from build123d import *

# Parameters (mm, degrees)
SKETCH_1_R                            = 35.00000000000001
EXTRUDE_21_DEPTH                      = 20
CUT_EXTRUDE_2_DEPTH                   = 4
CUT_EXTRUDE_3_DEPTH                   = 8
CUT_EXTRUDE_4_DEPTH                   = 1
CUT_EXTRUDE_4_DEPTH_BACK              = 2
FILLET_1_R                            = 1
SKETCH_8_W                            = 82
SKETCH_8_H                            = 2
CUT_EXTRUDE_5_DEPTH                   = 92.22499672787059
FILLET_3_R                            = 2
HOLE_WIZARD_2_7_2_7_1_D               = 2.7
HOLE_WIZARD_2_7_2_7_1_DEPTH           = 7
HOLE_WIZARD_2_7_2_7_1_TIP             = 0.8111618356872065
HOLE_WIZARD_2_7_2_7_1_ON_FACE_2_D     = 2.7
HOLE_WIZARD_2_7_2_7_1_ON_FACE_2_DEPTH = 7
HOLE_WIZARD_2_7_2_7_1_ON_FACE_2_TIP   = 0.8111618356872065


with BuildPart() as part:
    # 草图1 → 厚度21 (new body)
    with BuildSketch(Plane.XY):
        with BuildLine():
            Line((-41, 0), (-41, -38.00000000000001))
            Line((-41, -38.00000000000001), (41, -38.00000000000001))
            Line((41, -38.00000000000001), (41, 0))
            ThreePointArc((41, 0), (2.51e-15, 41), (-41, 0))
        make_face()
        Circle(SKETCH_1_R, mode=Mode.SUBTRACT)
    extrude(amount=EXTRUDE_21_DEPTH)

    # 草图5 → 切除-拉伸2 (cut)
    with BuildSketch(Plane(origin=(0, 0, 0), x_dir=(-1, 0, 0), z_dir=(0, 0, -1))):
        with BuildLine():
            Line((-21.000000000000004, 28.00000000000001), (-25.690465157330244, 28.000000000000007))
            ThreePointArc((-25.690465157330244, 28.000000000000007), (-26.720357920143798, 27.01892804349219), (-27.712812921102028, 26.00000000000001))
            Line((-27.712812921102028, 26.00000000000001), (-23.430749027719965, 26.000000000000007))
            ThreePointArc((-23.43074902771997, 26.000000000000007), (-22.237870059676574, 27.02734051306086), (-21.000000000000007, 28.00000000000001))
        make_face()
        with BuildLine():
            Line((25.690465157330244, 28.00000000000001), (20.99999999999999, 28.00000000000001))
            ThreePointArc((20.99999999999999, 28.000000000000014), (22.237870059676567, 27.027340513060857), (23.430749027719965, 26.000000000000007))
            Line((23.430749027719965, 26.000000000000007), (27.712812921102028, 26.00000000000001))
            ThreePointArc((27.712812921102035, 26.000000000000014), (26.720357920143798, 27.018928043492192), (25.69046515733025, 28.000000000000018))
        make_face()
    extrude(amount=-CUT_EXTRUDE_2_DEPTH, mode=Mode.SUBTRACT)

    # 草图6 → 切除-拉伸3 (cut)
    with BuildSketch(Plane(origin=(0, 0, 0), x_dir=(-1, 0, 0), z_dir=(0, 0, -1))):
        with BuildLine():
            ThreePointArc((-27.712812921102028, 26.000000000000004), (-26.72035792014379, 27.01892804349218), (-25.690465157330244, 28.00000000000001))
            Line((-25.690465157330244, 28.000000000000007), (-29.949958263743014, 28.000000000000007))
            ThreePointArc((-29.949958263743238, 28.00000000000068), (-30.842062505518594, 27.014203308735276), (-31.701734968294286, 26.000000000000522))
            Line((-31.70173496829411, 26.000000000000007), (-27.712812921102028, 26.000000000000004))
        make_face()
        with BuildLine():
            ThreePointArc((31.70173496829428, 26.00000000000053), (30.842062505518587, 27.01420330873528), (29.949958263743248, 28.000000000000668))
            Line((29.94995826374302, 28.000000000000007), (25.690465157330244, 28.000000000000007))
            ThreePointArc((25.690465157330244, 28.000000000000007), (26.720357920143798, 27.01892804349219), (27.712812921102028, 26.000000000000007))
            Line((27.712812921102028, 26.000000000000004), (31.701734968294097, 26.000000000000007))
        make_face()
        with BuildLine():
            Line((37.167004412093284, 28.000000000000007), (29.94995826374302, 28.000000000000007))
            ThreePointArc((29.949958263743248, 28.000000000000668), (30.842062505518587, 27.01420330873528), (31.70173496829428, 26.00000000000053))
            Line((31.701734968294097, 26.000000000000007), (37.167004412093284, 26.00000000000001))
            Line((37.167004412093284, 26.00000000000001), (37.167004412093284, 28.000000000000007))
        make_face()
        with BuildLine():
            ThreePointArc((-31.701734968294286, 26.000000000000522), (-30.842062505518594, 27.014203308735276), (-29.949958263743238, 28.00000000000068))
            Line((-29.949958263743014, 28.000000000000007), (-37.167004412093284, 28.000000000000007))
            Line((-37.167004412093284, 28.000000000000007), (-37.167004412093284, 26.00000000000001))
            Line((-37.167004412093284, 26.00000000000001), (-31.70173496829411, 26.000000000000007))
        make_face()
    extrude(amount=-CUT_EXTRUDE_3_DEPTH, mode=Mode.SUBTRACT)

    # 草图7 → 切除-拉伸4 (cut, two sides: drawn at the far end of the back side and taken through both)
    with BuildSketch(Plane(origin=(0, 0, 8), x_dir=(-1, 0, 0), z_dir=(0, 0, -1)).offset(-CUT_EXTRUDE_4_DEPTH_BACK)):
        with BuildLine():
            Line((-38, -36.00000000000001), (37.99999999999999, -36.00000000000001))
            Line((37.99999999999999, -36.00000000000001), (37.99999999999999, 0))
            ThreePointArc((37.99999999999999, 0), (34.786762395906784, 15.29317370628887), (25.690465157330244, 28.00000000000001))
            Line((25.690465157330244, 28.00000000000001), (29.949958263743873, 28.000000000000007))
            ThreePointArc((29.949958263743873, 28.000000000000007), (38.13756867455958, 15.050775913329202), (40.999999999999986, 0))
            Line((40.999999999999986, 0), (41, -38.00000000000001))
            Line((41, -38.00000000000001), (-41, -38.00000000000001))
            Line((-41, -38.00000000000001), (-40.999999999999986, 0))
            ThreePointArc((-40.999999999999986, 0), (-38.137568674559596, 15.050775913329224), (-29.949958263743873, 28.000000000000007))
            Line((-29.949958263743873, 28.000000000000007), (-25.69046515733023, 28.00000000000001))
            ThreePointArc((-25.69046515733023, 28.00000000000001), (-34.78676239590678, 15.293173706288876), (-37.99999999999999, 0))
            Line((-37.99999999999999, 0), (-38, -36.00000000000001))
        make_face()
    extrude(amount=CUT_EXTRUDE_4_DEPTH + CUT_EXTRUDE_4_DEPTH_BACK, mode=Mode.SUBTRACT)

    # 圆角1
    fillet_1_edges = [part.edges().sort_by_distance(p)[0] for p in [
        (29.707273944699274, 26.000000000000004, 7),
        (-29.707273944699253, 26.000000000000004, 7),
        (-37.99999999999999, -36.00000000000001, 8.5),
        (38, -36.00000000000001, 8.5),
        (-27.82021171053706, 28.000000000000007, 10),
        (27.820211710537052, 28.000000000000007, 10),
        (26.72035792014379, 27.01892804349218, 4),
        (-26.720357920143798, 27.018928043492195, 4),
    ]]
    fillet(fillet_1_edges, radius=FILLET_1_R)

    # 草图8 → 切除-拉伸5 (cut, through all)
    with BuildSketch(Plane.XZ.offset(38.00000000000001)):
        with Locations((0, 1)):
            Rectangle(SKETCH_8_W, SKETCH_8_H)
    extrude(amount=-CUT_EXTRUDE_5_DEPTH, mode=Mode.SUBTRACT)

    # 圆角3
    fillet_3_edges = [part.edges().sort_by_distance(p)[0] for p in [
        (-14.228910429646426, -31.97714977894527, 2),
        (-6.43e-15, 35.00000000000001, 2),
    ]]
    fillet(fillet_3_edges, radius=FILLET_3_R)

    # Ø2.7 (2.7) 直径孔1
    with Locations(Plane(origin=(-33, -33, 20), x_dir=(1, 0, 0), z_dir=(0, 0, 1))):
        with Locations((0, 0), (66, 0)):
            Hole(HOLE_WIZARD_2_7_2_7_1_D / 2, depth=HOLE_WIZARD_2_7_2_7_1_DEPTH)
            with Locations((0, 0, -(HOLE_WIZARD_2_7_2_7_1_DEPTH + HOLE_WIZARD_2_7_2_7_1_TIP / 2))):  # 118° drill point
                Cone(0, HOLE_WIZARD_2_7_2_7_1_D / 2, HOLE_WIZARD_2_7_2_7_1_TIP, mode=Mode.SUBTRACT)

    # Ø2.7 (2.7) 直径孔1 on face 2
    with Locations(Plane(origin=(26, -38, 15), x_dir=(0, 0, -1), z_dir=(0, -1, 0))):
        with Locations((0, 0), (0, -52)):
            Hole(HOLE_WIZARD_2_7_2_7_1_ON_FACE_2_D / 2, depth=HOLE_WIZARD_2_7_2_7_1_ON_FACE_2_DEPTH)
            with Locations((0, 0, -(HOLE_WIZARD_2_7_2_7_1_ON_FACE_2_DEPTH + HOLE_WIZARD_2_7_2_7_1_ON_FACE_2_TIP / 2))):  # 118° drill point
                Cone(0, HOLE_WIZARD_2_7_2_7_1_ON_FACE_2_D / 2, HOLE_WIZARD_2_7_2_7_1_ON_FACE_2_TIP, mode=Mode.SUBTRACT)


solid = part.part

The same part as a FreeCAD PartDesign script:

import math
import FreeCAD as App
import Part
import Sketcher


def edges_at(feature, points):
    """Names of the edges that pass closest to the given points."""
    edges = feature.Shape.Edges
    near = lambda p: min(range(len(edges)), key=lambda i: edges[i].distToShape(Part.Vertex(*p))[0])
    return sorted({f"Edge{near(p) + 1}" for p in points})


def add_polygon(sketch, points):
    """Adds a closed chain of lines whose ends are joined by coincident constraints."""
    first, n = sketch.GeometryCount, len(points)
    for a, b in zip(points, points[1:] + points[:1]):
        sketch.addGeometry(Part.LineSegment(App.Vector(*a, 0), App.Vector(*b, 0)), False)
    for i in range(n):
        sketch.addConstraint(Sketcher.Constraint("Coincident", first + i, 2, first + (i + 1) % n, 1))

doc = App.newDocument("Part")
body = doc.addObject("PartDesign::Body", "Body")

# Sketch on XY plane
sketch1 = body.newObject("Sketcher::SketchObject", "Sketch")
sketch1.AttachmentSupport = (doc.getObject("XY_Plane"), [""])
sketch1.MapMode = "FlatFace"
sketch1.addGeometry(Part.LineSegment(App.Vector(-41, 0, 0), App.Vector(-41, -38, 0)), False)
sketch1.addGeometry(Part.LineSegment(App.Vector(-41, -38, 0), App.Vector(41, -38, 0)), False)
sketch1.addGeometry(Part.LineSegment(App.Vector(41, -38, 0), App.Vector(41, 0, 0)), False)
sketch1.addGeometry(Part.ArcOfCircle(Part.Circle(App.Vector(0, 0, 0), App.Vector(0, 0, 1), 41), math.radians(0), math.radians(180)), False)
sketch1.addGeometry(Part.Circle(App.Vector(0, 0, 0), App.Vector(0, 0, 1), 35), False)
sketch1.addConstraint(Sketcher.Constraint("Coincident", 0, 2, 1, 1))
sketch1.addConstraint(Sketcher.Constraint("Coincident", 1, 2, 2, 1))
sketch1.addConstraint(Sketcher.Constraint("Tangent", 2, 2, 3, 1))
sketch1.addConstraint(Sketcher.Constraint("Tangent", 3, 2, 0, 1))
sketch1.addConstraint(Sketcher.Constraint("Vertical", 0))
sketch1.addConstraint(Sketcher.Constraint("Horizontal", 1))
sketch1.addConstraint(Sketcher.Constraint("Vertical", 2))
sketch1.addConstraint(Sketcher.Constraint("Coincident", 3, 3, -1, 1))
sketch1.addConstraint(Sketcher.Constraint("Coincident", 4, 3, -1, 1))
sketch1.addConstraint(Sketcher.Constraint("Diameter", 4, 70.0))
sketch1.addConstraint(Sketcher.Constraint("Radius", 3, 41.0))
sketch1.addConstraint(Sketcher.Constraint("DistanceY", 0, 2, 0, 1, 38.0))
pad1 = body.newObject("PartDesign::Pad", "Pad")
pad1.Profile = sketch1
pad1.Length = 20

# Sketch on XY plane
sketch2 = body.newObject("Sketcher::SketchObject", "Sketch001")
sketch2.AttachmentSupport = (doc.getObject("XY_Plane"), [""])
sketch2.MapMode = "FlatFace"
sketch2.addGeometry(Part.LineSegment(App.Vector(21, 28, 0), App.Vector(25.7, 28, 0)), False)
sketch2.addGeometry(Part.ArcOfCircle(Part.Circle(App.Vector(0, 0, 0), App.Vector(0, 0, 1), 38), math.radians(43.17), math.radians(47.46)), False)
sketch2.addGeometry(Part.LineSegment(App.Vector(27.7, 26, 0), App.Vector(23.4, 26, 0)), False)
sketch2.addGeometry(Part.ArcOfCircle(Part.Circle(App.Vector(0, 0, 0), App.Vector(0, 0, 1), 35), math.radians(47.98), math.radians(53.13)), False)
sketch2.addGeometry(Part.LineSegment(App.Vector(-25.7, 28, 0), App.Vector(-21, 28, 0)), False)
sketch2.addGeometry(Part.ArcOfCircle(Part.Circle(App.Vector(0, 0, 0), App.Vector(0, 0, 1), 35), math.radians(126.87), math.radians(132.02)), False)
sketch2.addGeometry(Part.LineSegment(App.Vector(-23.4, 26, 0), App.Vector(-27.7, 26, 0)), False)
sketch2.addGeometry(Part.ArcOfCircle(Part.Circle(App.Vector(0, 0, 0), App.Vector(0, 0, 1), 38), math.radians(132.54), math.radians(136.83)), False)
sketch2.addConstraint(Sketcher.Constraint("Coincident", 0, 2, 1, 2))
sketch2.addConstraint(Sketcher.Constraint("Coincident", 1, 1, 2, 1))
sketch2.addConstraint(Sketcher.Constraint("Coincident", 2, 2, 3, 1))
sketch2.addConstraint(Sketcher.Constraint("Coincident", 3, 2, 0, 1))
sketch2.addConstraint(Sketcher.Constraint("Coincident", 4, 2, 5, 1))
sketch2.addConstraint(Sketcher.Constraint("Coincident", 5, 2, 6, 1))
sketch2.addConstraint(Sketcher.Constraint("Coincident", 6, 2, 7, 2))
sketch2.addConstraint(Sketcher.Constraint("Coincident", 7, 1, 4, 1))
sketch2.addConstraint(Sketcher.Constraint("Horizontal", 0))
sketch2.addConstraint(Sketcher.Constraint("Horizontal", 2))
sketch2.addConstraint(Sketcher.Constraint("Horizontal", 4))
sketch2.addConstraint(Sketcher.Constraint("Horizontal", 6))
sketch2.addConstraint(Sketcher.Constraint("Coincident", 1, 3, -1, 1))
sketch2.addConstraint(Sketcher.Constraint("Coincident", 3, 3, -1, 1))
sketch2.addConstraint(Sketcher.Constraint("Coincident", 5, 3, -1, 1))
sketch2.addConstraint(Sketcher.Constraint("Coincident", 7, 3, -1, 1))
sketch2.addConstraint(Sketcher.Constraint("Equal", 3, 5))
sketch2.addConstraint(Sketcher.Constraint("Equal", 1, 7))
sketch2.addConstraint(Sketcher.Constraint("Horizontal", 3, 2, 4, 2))
sketch2.addConstraint(Sketcher.Constraint("Horizontal", 2, 2, 5, 2))
sketch2.addConstraint(Sketcher.Constraint("Radius", 1, 38.0))
sketch2.addConstraint(Sketcher.Constraint("Radius", 3, 35.0))
sketch2.addConstraint(Sketcher.Constraint("DistanceY", -1, 1, 0, 2, 28.0))
sketch2.addConstraint(Sketcher.Constraint("DistanceY", -1, 1, 1, 1, 26.0))
pocket1 = body.newObject("PartDesign::Pocket", "Pocket")
pocket1.Profile = sketch2
pocket1.Length = 4
pocket1.Reversed = True

# Sketch on XY plane
sketch3 = body.newObject("Sketcher::SketchObject", "Sketch002")
sketch3.AttachmentSupport = (doc.getObject("XY_Plane"), [""])
sketch3.MapMode = "FlatFace"
sketch3.addGeometry(Part.ArcOfCircle(Part.Circle(App.Vector(0, 0, 0), App.Vector(0, 0, 1), 38), math.radians(43.17), math.radians(47.46)), False)
sketch3.addGeometry(Part.LineSegment(App.Vector(25.7, 28, 0), App.Vector(37.2, 28, 0)), False)
sketch3.addGeometry(Part.LineSegment(App.Vector(37.2, 28, 0), App.Vector(37.2, 26, 0)), False)
sketch3.addGeometry(Part.LineSegment(App.Vector(37.2, 26, 0), App.Vector(27.7, 26, 0)), False)
sketch3.addGeometry(Part.ArcOfCircle(Part.Circle(App.Vector(0, 0, 0), App.Vector(0, 0, 1), 38), math.radians(132.54), math.radians(136.83)), False)
sketch3.addGeometry(Part.LineSegment(App.Vector(-27.7, 26, 0), App.Vector(-37.2, 26, 0)), False)
sketch3.addGeometry(Part.LineSegment(App.Vector(-37.2, 26, 0), App.Vector(-37.2, 28, 0)), False)
sketch3.addGeometry(Part.LineSegment(App.Vector(-37.2, 28, 0), App.Vector(-25.7, 28, 0)), False)
sketch3.addConstraint(Sketcher.Constraint("Coincident", 0, 2, 1, 1))
sketch3.addConstraint(Sketcher.Constraint("Coincident", 1, 2, 2, 1))
sketch3.addConstraint(Sketcher.Constraint("Coincident", 2, 2, 3, 1))
sketch3.addConstraint(Sketcher.Constraint("Coincident", 3, 2, 0, 1))
sketch3.addConstraint(Sketcher.Constraint("Coincident", 4, 2, 5, 1))
sketch3.addConstraint(Sketcher.Constraint("Coincident", 5, 2, 6, 1))
sketch3.addConstraint(Sketcher.Constraint("Coincident", 6, 2, 7, 1))
sketch3.addConstraint(Sketcher.Constraint("Coincident", 7, 2, 4, 1))
sketch3.addConstraint(Sketcher.Constraint("Horizontal", 1))
sketch3.addConstraint(Sketcher.Constraint("Vertical", 2))
sketch3.addConstraint(Sketcher.Constraint("Horizontal", 3))
sketch3.addConstraint(Sketcher.Constraint("Horizontal", 5))
sketch3.addConstraint(Sketcher.Constraint("Vertical", 6))
sketch3.addConstraint(Sketcher.Constraint("Horizontal", 7))
sketch3.addConstraint(Sketcher.Constraint("Coincident", 0, 3, -1, 1))
sketch3.addConstraint(Sketcher.Constraint("Coincident", 4, 3, -1, 1))
sketch3.addConstraint(Sketcher.Constraint("Equal", 0, 4))
sketch3.addConstraint(Sketcher.Constraint("Symmetric", 2, 2, 5, 2, -2))
sketch3.addConstraint(Sketcher.Constraint("Horizontal", 1, 2, 6, 2))
sketch3.addConstraint(Sketcher.Constraint("Radius", 0, 38.0))
sketch3.addConstraint(Sketcher.Constraint("DistanceY", 2, 2, 2, 1, 2.0))
sketch3.addConstraint(Sketcher.Constraint("DistanceY", -1, 1, 0, 2, 28.0))
sketch3.addConstraint(Sketcher.Constraint("DistanceX", 1, 1, 1, 2, 11.476539))
pocket2 = body.newObject("PartDesign::Pocket", "Pocket001")
pocket2.Profile = sketch3
pocket2.Length = 8
pocket2.Reversed = True

# Sketch on XY plane
sketch4 = body.newObject("Sketcher::SketchObject", "Sketch003")
sketch4.AttachmentSupport = (doc.getObject("XY_Plane"), [""])
sketch4.MapMode = "FlatFace"
sketch4.AttachmentOffset = App.Placement(App.Vector(0, 0, 8), App.Rotation())
sketch4.addGeometry(Part.LineSegment(App.Vector(-38, -36, 0), App.Vector(38, -36, 0)), False)
sketch4.addGeometry(Part.LineSegment(App.Vector(38, -36, 0), App.Vector(38, 0, 0)), False)
sketch4.addGeometry(Part.ArcOfCircle(Part.Circle(App.Vector(0, 0, 0), App.Vector(0, 0, 1), 38), math.radians(0), math.radians(47)), False)
sketch4.addGeometry(Part.LineSegment(App.Vector(25.7, 28, 0), App.Vector(29.9, 28, 0)), False)
sketch4.addGeometry(Part.ArcOfCircle(Part.Circle(App.Vector(0, 0, 0), App.Vector(0, 0, 1), 41), math.radians(0), math.radians(43)), False)
sketch4.addGeometry(Part.LineSegment(App.Vector(41, 0, 0), App.Vector(41, -38, 0)), False)
sketch4.addGeometry(Part.LineSegment(App.Vector(41, -38, 0), App.Vector(-41, -38, 0)), False)
sketch4.addGeometry(Part.LineSegment(App.Vector(-41, -38, 0), App.Vector(-41, 0, 0)), False)
sketch4.addGeometry(Part.ArcOfCircle(Part.Circle(App.Vector(0, 0, 0), App.Vector(0, 0, 1), 41), math.radians(137), math.radians(180)), False)
sketch4.addGeometry(Part.LineSegment(App.Vector(-29.9, 28, 0), App.Vector(-25.7, 28, 0)), False)
sketch4.addGeometry(Part.ArcOfCircle(Part.Circle(App.Vector(0, 0, 0), App.Vector(0, 0, 1), 38), math.radians(133), math.radians(180)), False)
sketch4.addGeometry(Part.LineSegment(App.Vector(-38, 0, 0), App.Vector(-38, -36, 0)), False)
sketch4.addConstraint(Sketcher.Constraint("Coincident", 0, 2, 1, 1))
sketch4.addConstraint(Sketcher.Constraint("Tangent", 1, 2, 2, 1))
sketch4.addConstraint(Sketcher.Constraint("Coincident", 2, 2, 3, 1))
sketch4.addConstraint(Sketcher.Constraint("Coincident", 3, 2, 4, 2))
sketch4.addConstraint(Sketcher.Constraint("Tangent", 4, 1, 5, 1))
sketch4.addConstraint(Sketcher.Constraint("Coincident", 5, 2, 6, 1))
sketch4.addConstraint(Sketcher.Constraint("Coincident", 6, 2, 7, 1))
sketch4.addConstraint(Sketcher.Constraint("Tangent", 7, 2, 8, 2))
sketch4.addConstraint(Sketcher.Constraint("Coincident", 8, 1, 9, 1))
sketch4.addConstraint(Sketcher.Constraint("Coincident", 9, 2, 10, 1))
sketch4.addConstraint(Sketcher.Constraint("Tangent", 10, 2, 11, 1))
sketch4.addConstraint(Sketcher.Constraint("Coincident", 11, 2, 0, 1))
sketch4.addConstraint(Sketcher.Constraint("Horizontal", 0))
sketch4.addConstraint(Sketcher.Constraint("Vertical", 1))
sketch4.addConstraint(Sketcher.Constraint("Horizontal", 3))
sketch4.addConstraint(Sketcher.Constraint("Vertical", 5))
sketch4.addConstraint(Sketcher.Constraint("Horizontal", 6))
sketch4.addConstraint(Sketcher.Constraint("Vertical", 7))
sketch4.addConstraint(Sketcher.Constraint("Horizontal", 9))
sketch4.addConstraint(Sketcher.Constraint("Vertical", 11))
sketch4.addConstraint(Sketcher.Constraint("Coincident", 2, 3, -1, 1))
sketch4.addConstraint(Sketcher.Constraint("Coincident", 4, 3, -1, 1))
sketch4.addConstraint(Sketcher.Constraint("Coincident", 8, 3, -1, 1))
sketch4.addConstraint(Sketcher.Constraint("Coincident", 10, 3, -1, 1))
sketch4.addConstraint(Sketcher.Constraint("Equal", 4, 8))
sketch4.addConstraint(Sketcher.Constraint("Equal", 2, 10))
sketch4.addConstraint(Sketcher.Constraint("Horizontal", 3, 2, 8, 1))
sketch4.addConstraint(Sketcher.Constraint("Radius", 2, 38.0))
sketch4.addConstraint(Sketcher.Constraint("Radius", 4, 41.0))
sketch4.addConstraint(Sketcher.Constraint("DistanceY", 1, 1, 1, 2, 36.0))
sketch4.addConstraint(Sketcher.Constraint("DistanceY", 5, 2, 5, 1, 38.0))
sketch4.addConstraint(Sketcher.Constraint("DistanceY", -1, 1, 2, 2, 28.0))
pocket3 = body.newObject("PartDesign::Pocket", "Pocket002")
pocket3.Profile = sketch4
pocket3.Type = "TwoLengths"
pocket3.Length = 1
pocket3.Length2 = 2
doc.recompute()

fillet = body.newObject("PartDesign::Fillet", "Fillet")
fillet.Base = (pocket3, edges_at(pocket3, [
    (29.707, 26, 7),
    (-29.707, 26, 7),
    (-38, -36, 8.5),
    (38, -36, 8.5),
    (-27.82, 28, 10),
    (27.82, 28, 10),
    (26.72, 27.019, 4),
    (-26.72, 27.019, 4),
]))
fillet.Radius = 1

# Sketch on XZ plane
sketch5 = body.newObject("Sketcher::SketchObject", "Sketch004")
sketch5.AttachmentSupport = (doc.getObject("XZ_Plane"), [""])
sketch5.MapMode = "FlatFace"
sketch5.AttachmentOffset = App.Placement(App.Vector(0, 0, 38), App.Rotation())
add_polygon(sketch5, [(-41, 2), (-41, 0), (41, 0), (41, 2)])  # lines 0-3
sketch5.addConstraint(Sketcher.Constraint("Vertical", 0))
sketch5.addConstraint(Sketcher.Constraint("Horizontal", 1))
sketch5.addConstraint(Sketcher.Constraint("Vertical", 2))
sketch5.addConstraint(Sketcher.Constraint("Horizontal", 3))
sketch5.addConstraint(Sketcher.Constraint("Symmetric", 0, 2, 1, 2, -1, 1))
sketch5.addConstraint(Sketcher.Constraint("DistanceX", 1, 1, 1, 2, 82.0))
sketch5.addConstraint(Sketcher.Constraint("DistanceY", 0, 2, 0, 1, 2.0))
pocket4 = body.newObject("PartDesign::Pocket", "Pocket003")
pocket4.Profile = sketch5
pocket4.Type = "ThroughAll"
doc.recompute()

fillet2 = body.newObject("PartDesign::Fillet", "Fillet001")
fillet2.Base = (pocket4, edges_at(pocket4, [(-14.229, -31.977, 2), (0, 35, 2)]))
fillet2.Radius = 2

# Sketch on XY plane
sketch6 = body.newObject("Sketcher::SketchObject", "Sketch005")
sketch6.AttachmentSupport = (doc.getObject("XY_Plane"), [""])
sketch6.MapMode = "FlatFace"
sketch6.AttachmentOffset = App.Placement(App.Vector(0, 0, 20), App.Rotation())
sketch6.addGeometry(Part.Circle(App.Vector(-33, -33, 0), App.Vector(0, 0, 1), 1.4), False)
sketch6.addGeometry(Part.Circle(App.Vector(33, -33, 0), App.Vector(0, 0, 1), 1.4), False)
sketch6.addConstraint(Sketcher.Constraint("Equal", 0, 1))
sketch6.addConstraint(Sketcher.Constraint("Symmetric", 0, 3, 1, 3, -2))
sketch6.addConstraint(Sketcher.Constraint("Diameter", 0, 2.7))
sketch6.addConstraint(Sketcher.Constraint("DistanceX", 0, 3, -1, 1, 33.0))
sketch6.addConstraint(Sketcher.Constraint("DistanceY", 0, 3, -1, 1, 33.0))
doc.recompute()
hole = body.newObject("PartDesign::Hole", "Hole")
hole.Profile = sketch6
hole.ThreadType = "None"
hole.Diameter = 2.7
hole.DepthType = "Dimension"
hole.Depth = 7
hole.DrillPoint = "Angled"
hole.DrillPointAngle = 118

# Sketch on XZ plane
sketch7 = body.newObject("Sketcher::SketchObject", "Sketch006")
sketch7.AttachmentSupport = (doc.getObject("XZ_Plane"), [""])
sketch7.MapMode = "FlatFace"
sketch7.AttachmentOffset = App.Placement(App.Vector(0, 0, 38), App.Rotation())
sketch7.addGeometry(Part.Circle(App.Vector(26, 15, 0), App.Vector(0, 0, 1), 1.4), False)
sketch7.addGeometry(Part.Circle(App.Vector(-26, 15, 0), App.Vector(0, 0, 1), 1.4), False)
sketch7.addConstraint(Sketcher.Constraint("Equal", 0, 1))
sketch7.addConstraint(Sketcher.Constraint("Symmetric", 0, 3, 1, 3, -2))
sketch7.addConstraint(Sketcher.Constraint("Diameter", 0, 2.7))
sketch7.addConstraint(Sketcher.Constraint("DistanceX", -1, 1, 0, 3, 26.0))
sketch7.addConstraint(Sketcher.Constraint("DistanceY", -1, 1, 0, 3, 15.0))
doc.recompute()
hole2 = body.newObject("PartDesign::Hole", "Hole001")
hole2.Profile = sketch7
hole2.ThreadType = "None"
hole2.Diameter = 2.7
hole2.DepthType = "Dimension"
hole2.Depth = 7
hole2.DrillPoint = "Angled"
hole2.DrillPointAngle = 118

doc.recompute()
